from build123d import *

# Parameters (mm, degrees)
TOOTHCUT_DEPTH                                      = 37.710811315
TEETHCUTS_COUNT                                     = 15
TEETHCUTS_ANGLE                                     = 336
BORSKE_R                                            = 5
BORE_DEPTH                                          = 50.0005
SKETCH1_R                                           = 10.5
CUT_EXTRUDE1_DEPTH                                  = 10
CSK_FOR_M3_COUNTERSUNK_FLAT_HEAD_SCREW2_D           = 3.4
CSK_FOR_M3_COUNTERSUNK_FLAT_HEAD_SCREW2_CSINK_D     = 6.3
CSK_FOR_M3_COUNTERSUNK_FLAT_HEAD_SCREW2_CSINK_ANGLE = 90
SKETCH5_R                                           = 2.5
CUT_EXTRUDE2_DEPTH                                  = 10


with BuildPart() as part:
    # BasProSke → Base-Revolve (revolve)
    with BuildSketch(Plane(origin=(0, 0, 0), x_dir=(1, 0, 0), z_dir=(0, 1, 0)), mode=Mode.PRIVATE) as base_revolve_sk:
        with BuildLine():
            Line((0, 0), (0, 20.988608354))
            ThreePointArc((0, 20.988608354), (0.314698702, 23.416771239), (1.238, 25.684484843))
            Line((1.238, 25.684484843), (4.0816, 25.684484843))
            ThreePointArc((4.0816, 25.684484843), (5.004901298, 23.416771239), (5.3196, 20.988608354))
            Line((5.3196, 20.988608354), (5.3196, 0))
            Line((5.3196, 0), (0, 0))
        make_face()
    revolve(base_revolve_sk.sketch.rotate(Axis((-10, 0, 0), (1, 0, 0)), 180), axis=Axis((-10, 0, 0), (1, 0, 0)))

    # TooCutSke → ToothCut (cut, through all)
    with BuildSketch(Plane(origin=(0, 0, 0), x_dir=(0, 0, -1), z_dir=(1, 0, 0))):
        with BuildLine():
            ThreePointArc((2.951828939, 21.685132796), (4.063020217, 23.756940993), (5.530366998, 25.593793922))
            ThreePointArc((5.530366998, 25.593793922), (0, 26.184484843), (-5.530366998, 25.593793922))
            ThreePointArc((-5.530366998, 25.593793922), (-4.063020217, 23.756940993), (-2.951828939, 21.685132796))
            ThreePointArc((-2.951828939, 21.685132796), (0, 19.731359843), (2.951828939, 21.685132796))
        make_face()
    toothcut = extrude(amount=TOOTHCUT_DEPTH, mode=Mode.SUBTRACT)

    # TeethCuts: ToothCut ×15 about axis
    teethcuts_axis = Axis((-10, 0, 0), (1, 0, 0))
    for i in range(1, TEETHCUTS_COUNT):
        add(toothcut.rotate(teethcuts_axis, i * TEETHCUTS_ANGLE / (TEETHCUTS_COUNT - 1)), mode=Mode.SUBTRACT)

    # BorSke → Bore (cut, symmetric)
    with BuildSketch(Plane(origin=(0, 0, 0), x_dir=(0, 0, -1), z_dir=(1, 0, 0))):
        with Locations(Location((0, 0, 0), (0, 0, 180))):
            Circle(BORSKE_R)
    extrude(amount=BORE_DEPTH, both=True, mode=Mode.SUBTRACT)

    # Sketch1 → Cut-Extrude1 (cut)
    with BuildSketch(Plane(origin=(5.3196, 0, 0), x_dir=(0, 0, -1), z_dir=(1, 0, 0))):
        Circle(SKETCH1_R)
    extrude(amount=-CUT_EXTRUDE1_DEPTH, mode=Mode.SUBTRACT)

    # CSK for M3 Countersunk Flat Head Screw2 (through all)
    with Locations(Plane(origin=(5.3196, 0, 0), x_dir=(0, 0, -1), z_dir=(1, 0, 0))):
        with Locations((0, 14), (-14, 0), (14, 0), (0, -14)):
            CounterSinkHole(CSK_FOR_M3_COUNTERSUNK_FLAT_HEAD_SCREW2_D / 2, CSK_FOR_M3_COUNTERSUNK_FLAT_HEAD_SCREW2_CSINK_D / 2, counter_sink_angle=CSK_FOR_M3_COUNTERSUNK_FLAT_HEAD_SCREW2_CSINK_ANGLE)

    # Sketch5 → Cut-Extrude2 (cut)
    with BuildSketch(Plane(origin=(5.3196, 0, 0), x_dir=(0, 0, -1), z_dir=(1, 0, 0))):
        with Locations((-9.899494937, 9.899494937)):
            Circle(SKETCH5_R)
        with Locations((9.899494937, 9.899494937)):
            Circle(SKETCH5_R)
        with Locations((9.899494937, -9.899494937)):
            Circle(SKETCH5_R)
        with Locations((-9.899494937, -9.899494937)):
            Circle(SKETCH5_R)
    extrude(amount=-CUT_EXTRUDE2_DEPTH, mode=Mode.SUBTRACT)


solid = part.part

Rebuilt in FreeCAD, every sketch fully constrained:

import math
import FreeCAD as App
import Part
import Sketcher

V = App.Vector
Q = App.Units.Quantity

doc = App.newDocument("Part")
body = doc.addObject("PartDesign::Body", "Body")

sketch1 = doc.addObject("Sketcher::SketchObject", "Sketch")
body.addObject(sketch1)
sketch1.AttachmentSupport = (doc.XZ_Plane, [""])
sketch1.MapMode = "FlatFace"
sketch1.addGeometry(Part.LineSegment(V(0, -21, 0), V(0, 0, 0)), False)
sketch1.addGeometry(Part.LineSegment(V(0, 0, 0), V(5.3, 0, 0)), False)
sketch1.addGeometry(Part.LineSegment(V(5.3, 0, 0), V(5.3, -21, 0)), False)
sketch1.addGeometry(Part.ArcOfCircle(Part.Circle(V(-4.2, -21, 0), V(0, 0, 1), 9.5), math.radians(-30), math.radians(0)), False)
sketch1.addGeometry(Part.LineSegment(V(4.1, -25.7, 0), V(1.2, -25.7, 0)), False)
sketch1.addGeometry(Part.ArcOfCircle(Part.Circle(V(9.5, -21, 0), V(0, 0, 1), 9.5), math.radians(-180), math.radians(-150)), False)
sketch1.addConstraint(Sketcher.Constraint("Coincident", 0, 2, 1, 1))
sketch1.addConstraint(Sketcher.Constraint("Coincident", 1, 2, 2, 1))
sketch1.addConstraint(Sketcher.Constraint("Tangent", 2, 2, 3, 2))
sketch1.addConstraint(Sketcher.Constraint("Coincident", 3, 1, 4, 1))
sketch1.addConstraint(Sketcher.Constraint("Coincident", 4, 2, 5, 2))
sketch1.addConstraint(Sketcher.Constraint("Tangent", 5, 1, 0, 1))
sketch1.addConstraint(Sketcher.Constraint("Vertical", 0))
sketch1.addConstraint(Sketcher.Constraint("Horizontal", 1))
sketch1.addConstraint(Sketcher.Constraint("Vertical", 2))
sketch1.addConstraint(Sketcher.Constraint("Horizontal", 4))
sketch1.addConstraint(Sketcher.Constraint("Coincident", 0, 2, -1, 1))
sketch1.addConstraint(Sketcher.Constraint("Equal", 3, 5))
sketch1.addConstraint(Sketcher.Constraint("Horizontal", 3, 3, 5, 3))
sketch1.addConstraint(Sketcher.Constraint("Radius", 3, Q("9.525 mm")))
sketch1.addConstraint(Sketcher.Constraint("DistanceX", 1, 1, 1, 2, Q("5.3196 mm")))
sketch1.addConstraint(Sketcher.Constraint("DistanceX", 4, 2, 4, 1, Q("2.8436 mm")))
sketch1.addConstraint(Sketcher.Constraint("DistanceY", 0, 1, 0, 2, Q("20.988608 mm")))
revolution = doc.addObject("PartDesign::Revolution", "Revolution")
body.addObject(revolution)
revolution.Profile = sketch1
revolution.ReferenceAxis = (sketch1, ["H_Axis"])
revolution.Angle = 360

sketch2 = doc.addObject("Sketcher::SketchObject", "Sketch001")
body.addObject(sketch2)
sketch2.AttachmentSupport = (doc.YZ_Plane, [""])
sketch2.MapMode = "FlatFace"
sketch2.addGeometry(Part.ArcOfCircle(Part.Circle(V(16.6, -14.9, 0), V(0, 0, 1), 13), math.radians(46), math.radians(67)), False)
sketch2.addGeometry(Part.ArcOfCircle(Part.Circle(V(0, 0, 0), V(0, 0, 1), 26.2), math.radians(-12), math.radians(12)), False)
sketch2.addGeometry(Part.ArcOfCircle(Part.Circle(V(16.6, 14.9, 0), V(0, 0, 1), 13), math.radians(-67), math.radians(-46)), False)
sketch2.addGeometry(Part.ArcOfCircle(Part.Circle(V(22.9, 0, 0), V(0, 0, 1), 3.2), math.radians(113), math.radians(247)), False)
sketch2.addConstraint(Sketcher.Constraint("Coincident", 0, 1, 1, 1))
sketch2.addConstraint(Sketcher.Constraint("Coincident", 1, 2, 2, 2))
sketch2.addConstraint(Sketcher.Constraint("Tangent", 2, 1, 3, 1))
sketch2.addConstraint(Sketcher.Constraint("Tangent", 3, 2, 0, 2))
sketch2.addConstraint(Sketcher.Constraint("Coincident", 1, 3, -1, 1))
sketch2.addConstraint(Sketcher.Constraint("Equal", 0, 2))
sketch2.addConstraint(Sketcher.Constraint("Symmetric", 0, 3, 2, 3, -1))
sketch2.addConstraint(Sketcher.Constraint("Radius", 0, Q("12.954 mm")))
sketch2.addConstraint(Sketcher.Constraint("Radius", 3, Q("3.20675 mm")))
sketch2.addConstraint(Sketcher.Constraint("Radius", 1, Q("26.184485 mm")))
sketch2.addConstraint(Sketcher.Constraint("DistanceX", -1, 1, 0, 3, Q("16.623602 mm")))
sketch2.addConstraint(Sketcher.Constraint("DistanceY", 0, 3, -1, 1, Q("14.876049 mm")))
pocket1 = doc.addObject("PartDesign::Pocket", "Pocket")
body.addObject(pocket1)
pocket1.Profile = sketch2
pocket1.Type = "ThroughAll"
pocket1.Reversed = True
doc.recompute()

polarpattern = doc.addObject("PartDesign::PolarPattern", "PolarPattern")
body.addObject(polarpattern)
polarpattern.Originals = [pocket1]
polarpattern.Axis = (doc.X_Axis, [""])
polarpattern.Angle = 360
polarpattern.Occurrences = 15
body.Tip = polarpattern

sketch3 = doc.addObject("Sketcher::SketchObject", "Sketch002")
body.addObject(sketch3)
sketch3.AttachmentSupport = (doc.YZ_Plane, [""])
sketch3.MapMode = "FlatFace"
sketch3.addGeometry(Part.Circle(V(0, 0, 0), V(0, 0, 1), 5), False)
sketch3.addConstraint(Sketcher.Constraint("Coincident", 0, 3, -1, 1))
sketch3.addConstraint(Sketcher.Constraint("Diameter", 0, Q("10 mm")))
pocket2 = doc.addObject("PartDesign::Pocket", "Pocket001")
body.addObject(pocket2)
pocket2.Profile = sketch3
pocket2.Length = 100.001
pocket2.Midplane = True

sketch4 = doc.addObject("Sketcher::SketchObject", "Sketch003")
body.addObject(sketch4)
sketch4.AttachmentSupport = (doc.YZ_Plane, [""])
sketch4.MapMode = "FlatFace"
sketch4.AttachmentOffset = App.Placement(V(0, 0, 5.3196), App.Rotation())
sketch4.addGeometry(Part.Circle(V(0, 0, 0), V(0, 0, 1), 10), False)
sketch4.addConstraint(Sketcher.Constraint("Coincident", 0, 3, -1, 1))
sketch4.addConstraint(Sketcher.Constraint("Diameter", 0, Q("21 mm")))
pocket3 = doc.addObject("PartDesign::Pocket", "Pocket002")
body.addObject(pocket3)
pocket3.Profile = sketch4
pocket3.Length = 10

sketch5 = doc.addObject("Sketcher::SketchObject", "Sketch004")
body.addObject(sketch5)
sketch5.AttachmentSupport = (doc.YZ_Plane, [""])
sketch5.MapMode = "FlatFace"
sketch5.AttachmentOffset = App.Placement(V(0, 0, 5.3196), App.Rotation())
sketch5.addGeometry(Part.Circle(V(14, 0, 0), V(0, 0, 1), 1.7), False)
sketch5.addGeometry(Part.Circle(V(0, 14, 0), V(0, 0, 1), 1.7), False)
sketch5.addGeometry(Part.Circle(V(0, -14, 0), V(0, 0, 1), 1.7), False)
sketch5.addGeometry(Part.Circle(V(-14, 0, 0), V(0, 0, 1), 1.7), False)
sketch5.addConstraint(Sketcher.Constraint("Equal", 0, 1))
sketch5.addConstraint(Sketcher.Constraint("Equal", 1, 2))
sketch5.addConstraint(Sketcher.Constraint("Equal", 2, 3))
sketch5.addConstraint(Sketcher.Constraint("Symmetric", 1, 3, 2, 3, -1, 1))
sketch5.addConstraint(Sketcher.Constraint("Symmetric", 0, 3, 3, 3, -1, 1))
sketch5.addConstraint(Sketcher.Constraint("PointOnObject", 0, 3, -1))
sketch5.addConstraint(Sketcher.Constraint("PointOnObject", 1, 3, -2))
sketch5.addConstraint(Sketcher.Constraint("Diameter", 0, Q("3.4 mm")))
sketch5.addConstraint(Sketcher.Constraint("DistanceX", -1, 1, 0, 3, Q("14 mm")))
sketch5.addConstraint(Sketcher.Constraint("DistanceY", -1, 1, 1, 3, Q("14 mm")))
doc.recompute()
hole = doc.addObject("PartDesign::Hole", "Hole")
body.addObject(hole)
hole.Profile = sketch5
hole.ThreadType = "None"
hole.Diameter = 3.4
hole.DepthType = "ThroughAll"
hole.HoleCutType = "Countersink"
hole.HoleCutDiameter = 6.3
hole.HoleCutCountersinkAngle = 90

sketch6 = doc.addObject("Sketcher::SketchObject", "Sketch005")
body.addObject(sketch6)
sketch6.AttachmentSupport = (doc.YZ_Plane, [""])
sketch6.MapMode = "FlatFace"
sketch6.AttachmentOffset = App.Placement(V(0, 0, 5.3196), App.Rotation())
sketch6.addGeometry(Part.Circle(V(9.9, 9.9, 0), V(0, 0, 1), 2.5), False)
sketch6.addGeometry(Part.Circle(V(9.9, -9.9, 0), V(0, 0, 1), 2.5), False)
sketch6.addGeometry(Part.Circle(V(-9.9, -9.9, 0), V(0, 0, 1), 2.5), False)
sketch6.addGeometry(Part.Circle(V(-9.9, 9.9, 0), V(0, 0, 1), 2.5), False)
sketch6.addConstraint(Sketcher.Constraint("Equal", 0, 1))
sketch6.addConstraint(Sketcher.Constraint("Equal", 1, 2))
sketch6.addConstraint(Sketcher.Constraint("Equal", 2, 3))
sketch6.addConstraint(Sketcher.Constraint("Symmetric", 0, 3, 2, 3, -1, 1))
sketch6.addConstraint(Sketcher.Constraint("Symmetric", 1, 3, 3, 3, -1, 1))
sketch6.addConstraint(Sketcher.Constraint("Symmetric", 1, 3, 2, 3, -2))
sketch6.addConstraint(Sketcher.Constraint("Diameter", 0, Q("5 mm")))
sketch6.addConstraint(Sketcher.Constraint("DistanceY", 1, 3, 0, 3, Q("19.79899 mm")))
sketch6.addConstraint(Sketcher.Constraint("DistanceX", 2, 3, 1, 3, Q("19.79899 mm")))
pocket4 = doc.addObject("PartDesign::Pocket", "Pocket003")
body.addObject(pocket4)
pocket4.Profile = sketch6
pocket4.Length = 10

doc.recompute()
